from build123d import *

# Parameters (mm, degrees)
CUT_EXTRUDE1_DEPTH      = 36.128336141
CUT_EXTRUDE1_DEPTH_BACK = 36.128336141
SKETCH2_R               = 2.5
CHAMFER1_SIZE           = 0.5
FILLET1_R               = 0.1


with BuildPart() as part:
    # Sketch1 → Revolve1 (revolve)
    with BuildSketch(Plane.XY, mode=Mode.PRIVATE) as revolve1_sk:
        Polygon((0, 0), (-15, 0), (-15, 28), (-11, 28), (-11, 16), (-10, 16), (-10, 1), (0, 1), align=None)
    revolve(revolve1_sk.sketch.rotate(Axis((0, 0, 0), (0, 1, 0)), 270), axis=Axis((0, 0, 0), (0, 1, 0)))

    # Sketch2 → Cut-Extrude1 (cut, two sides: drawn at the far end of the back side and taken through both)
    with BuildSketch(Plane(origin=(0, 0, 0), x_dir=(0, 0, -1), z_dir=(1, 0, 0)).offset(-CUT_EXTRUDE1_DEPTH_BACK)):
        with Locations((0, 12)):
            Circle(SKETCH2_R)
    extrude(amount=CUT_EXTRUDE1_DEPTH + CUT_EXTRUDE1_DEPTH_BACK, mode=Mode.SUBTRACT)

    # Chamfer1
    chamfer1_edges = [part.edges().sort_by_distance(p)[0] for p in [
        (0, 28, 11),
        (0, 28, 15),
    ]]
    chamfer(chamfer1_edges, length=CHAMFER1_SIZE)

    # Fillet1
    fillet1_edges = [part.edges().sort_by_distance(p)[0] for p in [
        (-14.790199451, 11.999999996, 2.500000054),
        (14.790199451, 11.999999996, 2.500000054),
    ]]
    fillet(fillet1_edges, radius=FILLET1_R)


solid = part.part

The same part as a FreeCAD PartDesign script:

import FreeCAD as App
import Part
import Sketcher
from FreeCAD import Vector
Q = App.Units.Quantity


def edges_at(feature, points):
    """Names of the edges that pass closest to the given points."""
    edges = feature.Shape.Edges
    near = lambda p: min(range(len(edges)), key=lambda i: edges[i].distToShape(Part.Vertex(*p))[0])
    return sorted({f"Edge{near(p) + 1}" for p in points})

doc = App.newDocument("Part")
body = doc.addObject("PartDesign::Body", "Body")

sketch1 = doc.addObject("Sketcher::SketchObject", "Sketch")
body.addObject(sketch1)
sketch1.AttachmentSupport = (doc.XY_Plane, [""])
sketch1.MapMode = "FlatFace"
sketch1.addGeometry(Part.LineSegment(Vector(-15, 0, 0), Vector(0, 0, 0)), False)
sketch1.addGeometry(Part.LineSegment(Vector(0, 0, 0), Vector(0, 1, 0)), False)
sketch1.addGeometry(Part.LineSegment(Vector(0, 1, 0), Vector(-10, 1, 0)), False)
sketch1.addGeometry(Part.LineSegment(Vector(-10, 1, 0), Vector(-10, 16, 0)), False)
sketch1.addGeometry(Part.LineSegment(Vector(-10, 16, 0), Vector(-11, 16, 0)), False)
sketch1.addGeometry(Part.LineSegment(Vector(-11, 16, 0), Vector(-11, 28, 0)), False)
sketch1.addGeometry(Part.LineSegment(Vector(-11, 28, 0), Vector(-15, 28, 0)), False)
sketch1.addGeometry(Part.LineSegment(Vector(-15, 28, 0), Vector(-15, 0, 0)), False)
sketch1.addConstraint(Sketcher.Constraint("Coincident", 0, 2, 1, 1))
sketch1.addConstraint(Sketcher.Constraint("Coincident", 1, 2, 2, 1))
sketch1.addConstraint(Sketcher.Constraint("Coincident", 2, 2, 3, 1))
sketch1.addConstraint(Sketcher.Constraint("Coincident", 3, 2, 4, 1))
sketch1.addConstraint(Sketcher.Constraint("Coincident", 4, 2, 5, 1))
sketch1.addConstraint(Sketcher.Constraint("Coincident", 5, 2, 6, 1))
sketch1.addConstraint(Sketcher.Constraint("Coincident", 6, 2, 7, 1))
sketch1.addConstraint(Sketcher.Constraint("Coincident", 7, 2, 0, 1))
sketch1.addConstraint(Sketcher.Constraint("Horizontal", 0))
sketch1.addConstraint(Sketcher.Constraint("Vertical", 1))
sketch1.addConstraint(Sketcher.Constraint("Horizontal", 2))
sketch1.addConstraint(Sketcher.Constraint("Vertical", 3))
sketch1.addConstraint(Sketcher.Constraint("Horizontal", 4))
sketch1.addConstraint(Sketcher.Constraint("Vertical", 5))
sketch1.addConstraint(Sketcher.Constraint("Horizontal", 6))
sketch1.addConstraint(Sketcher.Constraint("Vertical", 7))
sketch1.addConstraint(Sketcher.Constraint("Coincident", 0, 2, -1, 1))
sketch1.addConstraint(Sketcher.Constraint("Equal", 4, 1))
sketch1.addConstraint(Sketcher.Constraint("Equal", 0, 3))
sketch1.addConstraint(Sketcher.Constraint("DistanceX", 0, 1, 0, 2, Q("15 mm")))
sketch1.addConstraint(Sketcher.Constraint("DistanceX", 2, 2, 2, 1, Q("10 mm")))
sketch1.addConstraint(Sketcher.Constraint("DistanceX", 4, 2, 4, 1, Q("1 mm")))
sketch1.addConstraint(Sketcher.Constraint("DistanceY", 5, 1, 5, 2, Q("12 mm")))
revolution = doc.addObject("PartDesign::Revolution", "Revolution")
body.addObject(revolution)
revolution.Profile = sketch1
revolution.ReferenceAxis = (sketch1, ["V_Axis"])
revolution.Angle = 360

sketch2 = doc.addObject("Sketcher::SketchObject", "Sketch001")
body.addObject(sketch2)
sketch2.AttachmentSupport = (doc.YZ_Plane, [""])
sketch2.MapMode = "FlatFace"
sketch2.addGeometry(Part.Circle(Vector(12, 0, 0), Vector(0, 0, 1), 2.5), False)
sketch2.addConstraint(Sketcher.Constraint("PointOnObject", 0, 3, -1))
sketch2.addConstraint(Sketcher.Constraint("Diameter", 0, Q("5 mm")))
sketch2.addConstraint(Sketcher.Constraint("DistanceX", -1, 1, 0, 3, Q("12 mm")))
pocket1 = doc.addObject("PartDesign::Pocket", "Pocket")
body.addObject(pocket1)
pocket1.Profile = sketch2
pocket1.Type = "ThroughAll"
pocket1.Midplane = True
doc.recompute()

chamfer = doc.addObject("PartDesign::Chamfer", "Chamfer")
body.addObject(chamfer)
chamfer.Base = (pocket1, edges_at(pocket1, [(0, 28, 11), (0, 28, 15)]))
chamfer.Size = 0.5
doc.recompute()

fillet = doc.addObject("PartDesign::Fillet", "Fillet")
body.addObject(fillet)
fillet.Base = (chamfer, edges_at(chamfer, [(-14.79, 12, 2.5), (14.79, 12, 2.5)]))
fillet.Radius = 0.1

doc.recompute()
